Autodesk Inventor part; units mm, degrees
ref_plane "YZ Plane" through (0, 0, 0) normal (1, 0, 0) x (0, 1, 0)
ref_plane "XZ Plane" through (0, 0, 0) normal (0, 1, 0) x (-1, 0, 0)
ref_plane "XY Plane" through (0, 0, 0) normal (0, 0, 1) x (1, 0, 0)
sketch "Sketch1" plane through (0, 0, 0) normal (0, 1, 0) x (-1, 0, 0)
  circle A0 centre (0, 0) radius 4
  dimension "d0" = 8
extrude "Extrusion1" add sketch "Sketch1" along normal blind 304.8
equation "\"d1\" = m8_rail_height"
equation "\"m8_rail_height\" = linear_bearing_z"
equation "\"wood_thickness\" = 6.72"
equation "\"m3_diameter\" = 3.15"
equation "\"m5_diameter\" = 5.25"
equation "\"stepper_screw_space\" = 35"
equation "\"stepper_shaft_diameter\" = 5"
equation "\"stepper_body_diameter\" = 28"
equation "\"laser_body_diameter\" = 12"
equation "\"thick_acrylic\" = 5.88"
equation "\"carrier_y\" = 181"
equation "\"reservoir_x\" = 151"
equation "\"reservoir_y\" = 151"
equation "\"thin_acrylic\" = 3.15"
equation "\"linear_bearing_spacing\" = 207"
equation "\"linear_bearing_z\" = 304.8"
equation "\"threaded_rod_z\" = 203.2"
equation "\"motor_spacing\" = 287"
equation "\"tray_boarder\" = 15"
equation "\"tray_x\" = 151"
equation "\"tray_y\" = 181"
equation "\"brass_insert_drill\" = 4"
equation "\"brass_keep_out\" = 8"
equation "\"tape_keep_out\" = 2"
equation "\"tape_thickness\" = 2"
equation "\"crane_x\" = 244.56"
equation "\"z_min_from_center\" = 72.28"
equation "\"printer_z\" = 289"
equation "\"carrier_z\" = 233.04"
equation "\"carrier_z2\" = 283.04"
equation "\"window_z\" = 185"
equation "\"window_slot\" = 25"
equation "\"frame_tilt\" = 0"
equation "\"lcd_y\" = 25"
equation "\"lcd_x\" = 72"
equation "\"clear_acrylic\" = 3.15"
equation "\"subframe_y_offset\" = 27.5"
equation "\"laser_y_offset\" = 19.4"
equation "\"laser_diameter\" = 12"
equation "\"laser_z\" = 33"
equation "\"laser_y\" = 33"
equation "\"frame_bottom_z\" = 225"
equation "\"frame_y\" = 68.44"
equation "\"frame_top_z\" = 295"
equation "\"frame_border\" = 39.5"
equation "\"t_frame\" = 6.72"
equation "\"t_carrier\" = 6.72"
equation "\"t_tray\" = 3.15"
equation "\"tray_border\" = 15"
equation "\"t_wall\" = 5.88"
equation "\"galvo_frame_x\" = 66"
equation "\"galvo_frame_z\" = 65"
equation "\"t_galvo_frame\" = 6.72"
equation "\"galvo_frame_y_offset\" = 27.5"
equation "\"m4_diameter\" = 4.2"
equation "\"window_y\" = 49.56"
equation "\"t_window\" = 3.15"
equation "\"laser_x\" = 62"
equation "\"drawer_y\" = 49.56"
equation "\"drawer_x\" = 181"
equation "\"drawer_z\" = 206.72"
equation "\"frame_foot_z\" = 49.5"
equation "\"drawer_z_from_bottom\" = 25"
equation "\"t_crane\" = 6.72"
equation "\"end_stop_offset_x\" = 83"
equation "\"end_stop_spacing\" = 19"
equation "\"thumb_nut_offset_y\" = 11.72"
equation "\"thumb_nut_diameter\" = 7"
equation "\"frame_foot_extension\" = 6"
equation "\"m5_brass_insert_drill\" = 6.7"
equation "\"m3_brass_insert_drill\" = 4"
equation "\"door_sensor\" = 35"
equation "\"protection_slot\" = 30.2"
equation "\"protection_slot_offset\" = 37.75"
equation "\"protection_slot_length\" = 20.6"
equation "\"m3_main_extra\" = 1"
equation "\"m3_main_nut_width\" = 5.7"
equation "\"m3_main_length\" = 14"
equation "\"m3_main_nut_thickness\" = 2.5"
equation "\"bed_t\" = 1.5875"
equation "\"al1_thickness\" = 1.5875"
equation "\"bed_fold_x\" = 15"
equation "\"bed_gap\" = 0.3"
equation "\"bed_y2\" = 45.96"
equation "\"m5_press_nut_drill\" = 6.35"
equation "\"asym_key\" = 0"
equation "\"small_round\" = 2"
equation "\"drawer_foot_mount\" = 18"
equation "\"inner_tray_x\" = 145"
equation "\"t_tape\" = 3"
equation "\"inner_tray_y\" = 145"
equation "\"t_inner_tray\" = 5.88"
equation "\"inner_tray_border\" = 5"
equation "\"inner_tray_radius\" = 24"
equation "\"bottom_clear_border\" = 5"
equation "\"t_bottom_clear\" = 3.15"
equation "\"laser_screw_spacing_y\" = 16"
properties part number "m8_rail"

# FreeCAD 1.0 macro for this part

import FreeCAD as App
import Part
import Sketcher

V = App.Vector
Q = App.Units.Quantity

doc = App.newDocument("Part")
body = doc.addObject("PartDesign::Body", "Body")

sketch1 = body.newObject("Sketcher::SketchObject", "Sketch")
sketch1.AttachmentSupport = (doc.getObject("XZ_Plane"), [""])
sketch1.MapMode = "FlatFace"
sketch1.addGeometry(Part.Circle(V(0, 0, 0), V(0, 0, 1), 4), False)
sketch1.addConstraint(Sketcher.Constraint("Coincident", 0, 3, -1, 1))
sketch1.addConstraint(Sketcher.Constraint("Diameter", 0, Q("8 mm")))
pad1 = body.newObject("PartDesign::Pad", "Pad")
pad1.Profile = sketch1
pad1.Length = 304.8
pad1.Reversed = True

doc.recompute()
